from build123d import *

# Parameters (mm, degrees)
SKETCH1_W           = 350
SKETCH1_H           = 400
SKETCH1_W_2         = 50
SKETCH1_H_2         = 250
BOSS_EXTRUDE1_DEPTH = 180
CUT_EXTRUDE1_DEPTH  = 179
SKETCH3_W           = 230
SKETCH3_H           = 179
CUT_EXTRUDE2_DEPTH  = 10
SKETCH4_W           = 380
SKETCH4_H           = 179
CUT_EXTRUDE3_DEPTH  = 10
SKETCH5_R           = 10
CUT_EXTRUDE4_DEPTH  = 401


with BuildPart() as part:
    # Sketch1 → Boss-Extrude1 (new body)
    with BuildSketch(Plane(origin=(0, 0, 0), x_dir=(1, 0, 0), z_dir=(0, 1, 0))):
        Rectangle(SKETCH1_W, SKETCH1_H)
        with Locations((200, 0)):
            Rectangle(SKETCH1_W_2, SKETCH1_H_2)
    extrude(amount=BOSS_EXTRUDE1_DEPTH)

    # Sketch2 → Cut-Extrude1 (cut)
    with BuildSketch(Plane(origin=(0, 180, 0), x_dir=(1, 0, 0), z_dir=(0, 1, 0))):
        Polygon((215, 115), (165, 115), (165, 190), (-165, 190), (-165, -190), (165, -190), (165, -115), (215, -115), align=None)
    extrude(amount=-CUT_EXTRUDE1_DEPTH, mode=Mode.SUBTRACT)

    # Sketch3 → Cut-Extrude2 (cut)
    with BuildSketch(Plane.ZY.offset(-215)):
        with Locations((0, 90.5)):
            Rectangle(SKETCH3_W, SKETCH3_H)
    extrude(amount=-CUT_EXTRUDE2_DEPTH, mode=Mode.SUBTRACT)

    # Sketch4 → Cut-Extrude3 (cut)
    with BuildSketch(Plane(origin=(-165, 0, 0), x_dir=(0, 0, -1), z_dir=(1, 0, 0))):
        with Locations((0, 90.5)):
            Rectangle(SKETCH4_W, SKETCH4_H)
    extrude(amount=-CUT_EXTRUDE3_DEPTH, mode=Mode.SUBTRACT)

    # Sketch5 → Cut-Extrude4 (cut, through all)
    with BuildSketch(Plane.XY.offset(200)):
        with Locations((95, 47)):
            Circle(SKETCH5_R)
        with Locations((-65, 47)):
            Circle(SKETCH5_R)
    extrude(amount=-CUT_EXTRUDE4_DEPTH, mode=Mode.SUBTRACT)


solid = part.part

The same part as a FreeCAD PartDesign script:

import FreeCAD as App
import Part
import Sketcher
from FreeCAD import Vector

doc = App.newDocument("Part")
body = doc.addObject("PartDesign::Body", "Body")

# Sketch on XZ plane
sketch1 = doc.addObject("Sketcher::SketchObject", "Sketch")
body.addObject(sketch1)
sketch1.AttachmentSupport = (doc.XZ_Plane, [""])
sketch1.MapMode = "FlatFace"
sketch1.addGeometry([
    Part.LineSegment(Vector(-175, -200, 0), Vector(-175, 200, 0)),  # 0
    Part.LineSegment(Vector(-175, 200, 0), Vector(175, 200, 0)),  # 1
    Part.LineSegment(Vector(175, 200, 0), Vector(175, 125, 0)),  # 2
    Part.LineSegment(Vector(175, 125, 0), Vector(225, 125, 0)),  # 3
    Part.LineSegment(Vector(225, 125, 0), Vector(225, -125, 0)),  # 4
    Part.LineSegment(Vector(225, -125, 0), Vector(175, -125, 0)),  # 5
    Part.LineSegment(Vector(175, -125, 0), Vector(175, -200, 0)),  # 6
    Part.LineSegment(Vector(175, -200, 0), Vector(-175, -200, 0)),  # 7
], False)
sketch1.addConstraint([
    Sketcher.Constraint("Coincident", 0, 2, 1, 1),
    Sketcher.Constraint("Coincident", 1, 2, 2, 1),
    Sketcher.Constraint("Coincident", 2, 2, 3, 1),
    Sketcher.Constraint("Coincident", 3, 2, 4, 1),
    Sketcher.Constraint("Coincident", 4, 2, 5, 1),
    Sketcher.Constraint("Coincident", 5, 2, 6, 1),
    Sketcher.Constraint("Coincident", 6, 2, 7, 1),
    Sketcher.Constraint("Coincident", 7, 2, 0, 1),
    Sketcher.Constraint("Vertical", 0),
    Sketcher.Constraint("Horizontal", 1),
    Sketcher.Constraint("Vertical", 2),
    Sketcher.Constraint("Horizontal", 3),
    Sketcher.Constraint("Vertical", 4),
    Sketcher.Constraint("Horizontal", 5),
    Sketcher.Constraint("Vertical", 6),
    Sketcher.Constraint("Horizontal", 7),
    Sketcher.Constraint("Symmetric", 0, 2, 6, 2, -1, 1),
    Sketcher.Constraint("Symmetric", 2, 2, 5, 2, -1),
    Sketcher.Constraint("DistanceX", 1, 1, 1, 2, 350.0),
    Sketcher.Constraint("DistanceX", 3, 1, 3, 2, 50.0),
    Sketcher.Constraint("DistanceY", 0, 1, 0, 2, 400.0),
    Sketcher.Constraint("DistanceY", 2, 2, 2, 1, 75.0),
])
pad1 = doc.addObject("PartDesign::Pad", "Pad")
body.addObject(pad1)
pad1.Profile = sketch1
pad1.Length = 180
pad1.Reversed = True

# Sketch on XZ plane
sketch2 = doc.addObject("Sketcher::SketchObject", "Sketch001")
body.addObject(sketch2)
sketch2.AttachmentSupport = (doc.XZ_Plane, [""])
sketch2.MapMode = "FlatFace"
sketch2.AttachmentOffset = App.Placement(Vector(0, 0, -180), App.Rotation())
sketch2.addGeometry([
    Part.LineSegment(Vector(215, -115, 0), Vector(165, -115, 0)),  # 0
    Part.LineSegment(Vector(165, -115, 0), Vector(165, -190, 0)),  # 1
    Part.LineSegment(Vector(165, -190, 0), Vector(-165, -190, 0)),  # 2
    Part.LineSegment(Vector(-165, -190, 0), Vector(-165, 190, 0)),  # 3
    Part.LineSegment(Vector(-165, 190, 0), Vector(165, 190, 0)),  # 4
    Part.LineSegment(Vector(165, 190, 0), Vector(165, 115, 0)),  # 5
    Part.LineSegment(Vector(165, 115, 0), Vector(215, 115, 0)),  # 6
    Part.LineSegment(Vector(215, 115, 0), Vector(215, -115, 0)),  # 7
], False)
sketch2.addConstraint([
    Sketcher.Constraint("Coincident", 0, 2, 1, 1),
    Sketcher.Constraint("Coincident", 1, 2, 2, 1),
    Sketcher.Constraint("Coincident", 2, 2, 3, 1),
    Sketcher.Constraint("Coincident", 3, 2, 4, 1),
    Sketcher.Constraint("Coincident", 4, 2, 5, 1),
    Sketcher.Constraint("Coincident", 5, 2, 6, 1),
    Sketcher.Constraint("Coincident", 6, 2, 7, 1),
    Sketcher.Constraint("Coincident", 7, 2, 0, 1),
    Sketcher.Constraint("Horizontal", 0),
    Sketcher.Constraint("Vertical", 1),
    Sketcher.Constraint("Horizontal", 2),
    Sketcher.Constraint("Vertical", 3),
    Sketcher.Constraint("Horizontal", 4),
    Sketcher.Constraint("Vertical", 5),
    Sketcher.Constraint("Horizontal", 6),
    Sketcher.Constraint("Vertical", 7),
    Sketcher.Constraint("Symmetric", 1, 2, 3, 2, -1, 1),
    Sketcher.Constraint("Symmetric", 0, 2, 5, 2, -1),
    Sketcher.Constraint("DistanceX", 0, 2, 0, 1, 50.0),
    Sketcher.Constraint("DistanceX", 2, 2, 2, 1, 330.0),
    Sketcher.Constraint("DistanceY", 1, 2, 1, 1, 75.0),
    Sketcher.Constraint("DistanceY", 3, 1, 3, 2, 380.0),
])
pocket1 = doc.addObject("PartDesign::Pocket", "Pocket")
body.addObject(pocket1)
pocket1.Profile = sketch2
pocket1.Length = 179
pocket1.Reversed = True

# Sketch on YZ plane
sketch3 = doc.addObject("Sketcher::SketchObject", "Sketch002")
body.addObject(sketch3)
sketch3.AttachmentSupport = (doc.YZ_Plane, [""])
sketch3.MapMode = "FlatFace"
sketch3.AttachmentOffset = App.Placement(Vector(0, 0, 215), App.Rotation())
sketch3.addGeometry([
    Part.LineSegment(Vector(180, -115, 0), Vector(1, -115, 0)),
    Part.LineSegment(Vector(1, -115, 0), Vector(1, 115, 0)),
    Part.LineSegment(Vector(1, 115, 0), Vector(180, 115, 0)),
    Part.LineSegment(Vector(180, 115, 0), Vector(180, -115, 0)),
], False)
sketch3.addConstraint([
    Sketcher.Constraint("Coincident", 0, 2, 1, 1),
    Sketcher.Constraint("Coincident", 1, 2, 2, 1),
    Sketcher.Constraint("Coincident", 2, 2, 3, 1),
    Sketcher.Constraint("Coincident", 3, 2, 0, 1),
    Sketcher.Constraint("Horizontal", 0),
    Sketcher.Constraint("Vertical", 1),
    Sketcher.Constraint("Horizontal", 2),
    Sketcher.Constraint("Vertical", 3),
    Sketcher.Constraint("DistanceX", 0, 2, 0, 1, 179.0),
    Sketcher.Constraint("DistanceY", 1, 1, 1, 2, 230.0),
    Sketcher.Constraint("DistanceX", -1, 1, 0, 2, 1.0),
    Sketcher.Constraint("DistanceY", 0, 2, -1, 1, 115.0),
])
pocket2 = doc.addObject("PartDesign::Pocket", "Pocket001")
body.addObject(pocket2)
pocket2.Profile = sketch3
pocket2.Length = 10
pocket2.Reversed = True

# Sketch on YZ plane
sketch4 = doc.addObject("Sketcher::SketchObject", "Sketch003")
body.addObject(sketch4)
sketch4.AttachmentSupport = (doc.YZ_Plane, [""])
sketch4.MapMode = "FlatFace"
sketch4.AttachmentOffset = App.Placement(Vector(0, 0, -165), App.Rotation())
sketch4.addGeometry([
    Part.LineSegment(Vector(180, 190, 0), Vector(1, 190, 0)),
    Part.LineSegment(Vector(1, 190, 0), Vector(1, -190, 0)),
    Part.LineSegment(Vector(1, -190, 0), Vector(180, -190, 0)),
    Part.LineSegment(Vector(180, -190, 0), Vector(180, 190, 0)),
], False)
sketch4.addConstraint([
    Sketcher.Constraint("Coincident", 0, 2, 1, 1),
    Sketcher.Constraint("Coincident", 1, 2, 2, 1),
    Sketcher.Constraint("Coincident", 2, 2, 3, 1),
    Sketcher.Constraint("Coincident", 3, 2, 0, 1),
    Sketcher.Constraint("Horizontal", 0),
    Sketcher.Constraint("Vertical", 1),
    Sketcher.Constraint("Horizontal", 2),
    Sketcher.Constraint("Vertical", 3),
    Sketcher.Constraint("DistanceX", 0, 2, 0, 1, 179.0),
    Sketcher.Constraint("DistanceY", 1, 2, 1, 1, 380.0),
    Sketcher.Constraint("DistanceX", -1, 1, 0, 2, 1.0),
    Sketcher.Constraint("DistanceY", -1, 1, 0, 2, 190.0),
])
pocket3 = doc.addObject("PartDesign::Pocket", "Pocket002")
body.addObject(pocket3)
pocket3.Profile = sketch4
pocket3.Length = 10

# Sketch on XY plane
sketch5 = doc.addObject("Sketcher::SketchObject", "Sketch004")
body.addObject(sketch5)
sketch5.AttachmentSupport = (doc.XY_Plane, [""])
sketch5.MapMode = "FlatFace"
sketch5.AttachmentOffset = App.Placement(Vector(0, 0, 200), App.Rotation())
sketch5.addGeometry([
    Part.Circle(Vector(95, 47, 0), Vector(0, 0, 1), 10),
    Part.Circle(Vector(-65, 47, 0), Vector(0, 0, 1), 10),
], False)
sketch5.addConstraint([
    Sketcher.Constraint("Equal", 0, 1),
    Sketcher.Constraint("Horizontal", 0, 3, 1, 3),
    Sketcher.Constraint("Diameter", 0, 20.0),
    Sketcher.Constraint("DistanceX", -1, 1, 0, 3, 95.0),
    Sketcher.Constraint("DistanceY", -1, 1, 0, 3, 47.0),
    Sketcher.Constraint("DistanceX", 1, 3, -1, 1, 65.0),
])
pocket4 = doc.addObject("PartDesign::Pocket", "Pocket003")
body.addObject(pocket4)
pocket4.Profile = sketch5
pocket4.Type = "ThroughAll"

doc.recompute()
